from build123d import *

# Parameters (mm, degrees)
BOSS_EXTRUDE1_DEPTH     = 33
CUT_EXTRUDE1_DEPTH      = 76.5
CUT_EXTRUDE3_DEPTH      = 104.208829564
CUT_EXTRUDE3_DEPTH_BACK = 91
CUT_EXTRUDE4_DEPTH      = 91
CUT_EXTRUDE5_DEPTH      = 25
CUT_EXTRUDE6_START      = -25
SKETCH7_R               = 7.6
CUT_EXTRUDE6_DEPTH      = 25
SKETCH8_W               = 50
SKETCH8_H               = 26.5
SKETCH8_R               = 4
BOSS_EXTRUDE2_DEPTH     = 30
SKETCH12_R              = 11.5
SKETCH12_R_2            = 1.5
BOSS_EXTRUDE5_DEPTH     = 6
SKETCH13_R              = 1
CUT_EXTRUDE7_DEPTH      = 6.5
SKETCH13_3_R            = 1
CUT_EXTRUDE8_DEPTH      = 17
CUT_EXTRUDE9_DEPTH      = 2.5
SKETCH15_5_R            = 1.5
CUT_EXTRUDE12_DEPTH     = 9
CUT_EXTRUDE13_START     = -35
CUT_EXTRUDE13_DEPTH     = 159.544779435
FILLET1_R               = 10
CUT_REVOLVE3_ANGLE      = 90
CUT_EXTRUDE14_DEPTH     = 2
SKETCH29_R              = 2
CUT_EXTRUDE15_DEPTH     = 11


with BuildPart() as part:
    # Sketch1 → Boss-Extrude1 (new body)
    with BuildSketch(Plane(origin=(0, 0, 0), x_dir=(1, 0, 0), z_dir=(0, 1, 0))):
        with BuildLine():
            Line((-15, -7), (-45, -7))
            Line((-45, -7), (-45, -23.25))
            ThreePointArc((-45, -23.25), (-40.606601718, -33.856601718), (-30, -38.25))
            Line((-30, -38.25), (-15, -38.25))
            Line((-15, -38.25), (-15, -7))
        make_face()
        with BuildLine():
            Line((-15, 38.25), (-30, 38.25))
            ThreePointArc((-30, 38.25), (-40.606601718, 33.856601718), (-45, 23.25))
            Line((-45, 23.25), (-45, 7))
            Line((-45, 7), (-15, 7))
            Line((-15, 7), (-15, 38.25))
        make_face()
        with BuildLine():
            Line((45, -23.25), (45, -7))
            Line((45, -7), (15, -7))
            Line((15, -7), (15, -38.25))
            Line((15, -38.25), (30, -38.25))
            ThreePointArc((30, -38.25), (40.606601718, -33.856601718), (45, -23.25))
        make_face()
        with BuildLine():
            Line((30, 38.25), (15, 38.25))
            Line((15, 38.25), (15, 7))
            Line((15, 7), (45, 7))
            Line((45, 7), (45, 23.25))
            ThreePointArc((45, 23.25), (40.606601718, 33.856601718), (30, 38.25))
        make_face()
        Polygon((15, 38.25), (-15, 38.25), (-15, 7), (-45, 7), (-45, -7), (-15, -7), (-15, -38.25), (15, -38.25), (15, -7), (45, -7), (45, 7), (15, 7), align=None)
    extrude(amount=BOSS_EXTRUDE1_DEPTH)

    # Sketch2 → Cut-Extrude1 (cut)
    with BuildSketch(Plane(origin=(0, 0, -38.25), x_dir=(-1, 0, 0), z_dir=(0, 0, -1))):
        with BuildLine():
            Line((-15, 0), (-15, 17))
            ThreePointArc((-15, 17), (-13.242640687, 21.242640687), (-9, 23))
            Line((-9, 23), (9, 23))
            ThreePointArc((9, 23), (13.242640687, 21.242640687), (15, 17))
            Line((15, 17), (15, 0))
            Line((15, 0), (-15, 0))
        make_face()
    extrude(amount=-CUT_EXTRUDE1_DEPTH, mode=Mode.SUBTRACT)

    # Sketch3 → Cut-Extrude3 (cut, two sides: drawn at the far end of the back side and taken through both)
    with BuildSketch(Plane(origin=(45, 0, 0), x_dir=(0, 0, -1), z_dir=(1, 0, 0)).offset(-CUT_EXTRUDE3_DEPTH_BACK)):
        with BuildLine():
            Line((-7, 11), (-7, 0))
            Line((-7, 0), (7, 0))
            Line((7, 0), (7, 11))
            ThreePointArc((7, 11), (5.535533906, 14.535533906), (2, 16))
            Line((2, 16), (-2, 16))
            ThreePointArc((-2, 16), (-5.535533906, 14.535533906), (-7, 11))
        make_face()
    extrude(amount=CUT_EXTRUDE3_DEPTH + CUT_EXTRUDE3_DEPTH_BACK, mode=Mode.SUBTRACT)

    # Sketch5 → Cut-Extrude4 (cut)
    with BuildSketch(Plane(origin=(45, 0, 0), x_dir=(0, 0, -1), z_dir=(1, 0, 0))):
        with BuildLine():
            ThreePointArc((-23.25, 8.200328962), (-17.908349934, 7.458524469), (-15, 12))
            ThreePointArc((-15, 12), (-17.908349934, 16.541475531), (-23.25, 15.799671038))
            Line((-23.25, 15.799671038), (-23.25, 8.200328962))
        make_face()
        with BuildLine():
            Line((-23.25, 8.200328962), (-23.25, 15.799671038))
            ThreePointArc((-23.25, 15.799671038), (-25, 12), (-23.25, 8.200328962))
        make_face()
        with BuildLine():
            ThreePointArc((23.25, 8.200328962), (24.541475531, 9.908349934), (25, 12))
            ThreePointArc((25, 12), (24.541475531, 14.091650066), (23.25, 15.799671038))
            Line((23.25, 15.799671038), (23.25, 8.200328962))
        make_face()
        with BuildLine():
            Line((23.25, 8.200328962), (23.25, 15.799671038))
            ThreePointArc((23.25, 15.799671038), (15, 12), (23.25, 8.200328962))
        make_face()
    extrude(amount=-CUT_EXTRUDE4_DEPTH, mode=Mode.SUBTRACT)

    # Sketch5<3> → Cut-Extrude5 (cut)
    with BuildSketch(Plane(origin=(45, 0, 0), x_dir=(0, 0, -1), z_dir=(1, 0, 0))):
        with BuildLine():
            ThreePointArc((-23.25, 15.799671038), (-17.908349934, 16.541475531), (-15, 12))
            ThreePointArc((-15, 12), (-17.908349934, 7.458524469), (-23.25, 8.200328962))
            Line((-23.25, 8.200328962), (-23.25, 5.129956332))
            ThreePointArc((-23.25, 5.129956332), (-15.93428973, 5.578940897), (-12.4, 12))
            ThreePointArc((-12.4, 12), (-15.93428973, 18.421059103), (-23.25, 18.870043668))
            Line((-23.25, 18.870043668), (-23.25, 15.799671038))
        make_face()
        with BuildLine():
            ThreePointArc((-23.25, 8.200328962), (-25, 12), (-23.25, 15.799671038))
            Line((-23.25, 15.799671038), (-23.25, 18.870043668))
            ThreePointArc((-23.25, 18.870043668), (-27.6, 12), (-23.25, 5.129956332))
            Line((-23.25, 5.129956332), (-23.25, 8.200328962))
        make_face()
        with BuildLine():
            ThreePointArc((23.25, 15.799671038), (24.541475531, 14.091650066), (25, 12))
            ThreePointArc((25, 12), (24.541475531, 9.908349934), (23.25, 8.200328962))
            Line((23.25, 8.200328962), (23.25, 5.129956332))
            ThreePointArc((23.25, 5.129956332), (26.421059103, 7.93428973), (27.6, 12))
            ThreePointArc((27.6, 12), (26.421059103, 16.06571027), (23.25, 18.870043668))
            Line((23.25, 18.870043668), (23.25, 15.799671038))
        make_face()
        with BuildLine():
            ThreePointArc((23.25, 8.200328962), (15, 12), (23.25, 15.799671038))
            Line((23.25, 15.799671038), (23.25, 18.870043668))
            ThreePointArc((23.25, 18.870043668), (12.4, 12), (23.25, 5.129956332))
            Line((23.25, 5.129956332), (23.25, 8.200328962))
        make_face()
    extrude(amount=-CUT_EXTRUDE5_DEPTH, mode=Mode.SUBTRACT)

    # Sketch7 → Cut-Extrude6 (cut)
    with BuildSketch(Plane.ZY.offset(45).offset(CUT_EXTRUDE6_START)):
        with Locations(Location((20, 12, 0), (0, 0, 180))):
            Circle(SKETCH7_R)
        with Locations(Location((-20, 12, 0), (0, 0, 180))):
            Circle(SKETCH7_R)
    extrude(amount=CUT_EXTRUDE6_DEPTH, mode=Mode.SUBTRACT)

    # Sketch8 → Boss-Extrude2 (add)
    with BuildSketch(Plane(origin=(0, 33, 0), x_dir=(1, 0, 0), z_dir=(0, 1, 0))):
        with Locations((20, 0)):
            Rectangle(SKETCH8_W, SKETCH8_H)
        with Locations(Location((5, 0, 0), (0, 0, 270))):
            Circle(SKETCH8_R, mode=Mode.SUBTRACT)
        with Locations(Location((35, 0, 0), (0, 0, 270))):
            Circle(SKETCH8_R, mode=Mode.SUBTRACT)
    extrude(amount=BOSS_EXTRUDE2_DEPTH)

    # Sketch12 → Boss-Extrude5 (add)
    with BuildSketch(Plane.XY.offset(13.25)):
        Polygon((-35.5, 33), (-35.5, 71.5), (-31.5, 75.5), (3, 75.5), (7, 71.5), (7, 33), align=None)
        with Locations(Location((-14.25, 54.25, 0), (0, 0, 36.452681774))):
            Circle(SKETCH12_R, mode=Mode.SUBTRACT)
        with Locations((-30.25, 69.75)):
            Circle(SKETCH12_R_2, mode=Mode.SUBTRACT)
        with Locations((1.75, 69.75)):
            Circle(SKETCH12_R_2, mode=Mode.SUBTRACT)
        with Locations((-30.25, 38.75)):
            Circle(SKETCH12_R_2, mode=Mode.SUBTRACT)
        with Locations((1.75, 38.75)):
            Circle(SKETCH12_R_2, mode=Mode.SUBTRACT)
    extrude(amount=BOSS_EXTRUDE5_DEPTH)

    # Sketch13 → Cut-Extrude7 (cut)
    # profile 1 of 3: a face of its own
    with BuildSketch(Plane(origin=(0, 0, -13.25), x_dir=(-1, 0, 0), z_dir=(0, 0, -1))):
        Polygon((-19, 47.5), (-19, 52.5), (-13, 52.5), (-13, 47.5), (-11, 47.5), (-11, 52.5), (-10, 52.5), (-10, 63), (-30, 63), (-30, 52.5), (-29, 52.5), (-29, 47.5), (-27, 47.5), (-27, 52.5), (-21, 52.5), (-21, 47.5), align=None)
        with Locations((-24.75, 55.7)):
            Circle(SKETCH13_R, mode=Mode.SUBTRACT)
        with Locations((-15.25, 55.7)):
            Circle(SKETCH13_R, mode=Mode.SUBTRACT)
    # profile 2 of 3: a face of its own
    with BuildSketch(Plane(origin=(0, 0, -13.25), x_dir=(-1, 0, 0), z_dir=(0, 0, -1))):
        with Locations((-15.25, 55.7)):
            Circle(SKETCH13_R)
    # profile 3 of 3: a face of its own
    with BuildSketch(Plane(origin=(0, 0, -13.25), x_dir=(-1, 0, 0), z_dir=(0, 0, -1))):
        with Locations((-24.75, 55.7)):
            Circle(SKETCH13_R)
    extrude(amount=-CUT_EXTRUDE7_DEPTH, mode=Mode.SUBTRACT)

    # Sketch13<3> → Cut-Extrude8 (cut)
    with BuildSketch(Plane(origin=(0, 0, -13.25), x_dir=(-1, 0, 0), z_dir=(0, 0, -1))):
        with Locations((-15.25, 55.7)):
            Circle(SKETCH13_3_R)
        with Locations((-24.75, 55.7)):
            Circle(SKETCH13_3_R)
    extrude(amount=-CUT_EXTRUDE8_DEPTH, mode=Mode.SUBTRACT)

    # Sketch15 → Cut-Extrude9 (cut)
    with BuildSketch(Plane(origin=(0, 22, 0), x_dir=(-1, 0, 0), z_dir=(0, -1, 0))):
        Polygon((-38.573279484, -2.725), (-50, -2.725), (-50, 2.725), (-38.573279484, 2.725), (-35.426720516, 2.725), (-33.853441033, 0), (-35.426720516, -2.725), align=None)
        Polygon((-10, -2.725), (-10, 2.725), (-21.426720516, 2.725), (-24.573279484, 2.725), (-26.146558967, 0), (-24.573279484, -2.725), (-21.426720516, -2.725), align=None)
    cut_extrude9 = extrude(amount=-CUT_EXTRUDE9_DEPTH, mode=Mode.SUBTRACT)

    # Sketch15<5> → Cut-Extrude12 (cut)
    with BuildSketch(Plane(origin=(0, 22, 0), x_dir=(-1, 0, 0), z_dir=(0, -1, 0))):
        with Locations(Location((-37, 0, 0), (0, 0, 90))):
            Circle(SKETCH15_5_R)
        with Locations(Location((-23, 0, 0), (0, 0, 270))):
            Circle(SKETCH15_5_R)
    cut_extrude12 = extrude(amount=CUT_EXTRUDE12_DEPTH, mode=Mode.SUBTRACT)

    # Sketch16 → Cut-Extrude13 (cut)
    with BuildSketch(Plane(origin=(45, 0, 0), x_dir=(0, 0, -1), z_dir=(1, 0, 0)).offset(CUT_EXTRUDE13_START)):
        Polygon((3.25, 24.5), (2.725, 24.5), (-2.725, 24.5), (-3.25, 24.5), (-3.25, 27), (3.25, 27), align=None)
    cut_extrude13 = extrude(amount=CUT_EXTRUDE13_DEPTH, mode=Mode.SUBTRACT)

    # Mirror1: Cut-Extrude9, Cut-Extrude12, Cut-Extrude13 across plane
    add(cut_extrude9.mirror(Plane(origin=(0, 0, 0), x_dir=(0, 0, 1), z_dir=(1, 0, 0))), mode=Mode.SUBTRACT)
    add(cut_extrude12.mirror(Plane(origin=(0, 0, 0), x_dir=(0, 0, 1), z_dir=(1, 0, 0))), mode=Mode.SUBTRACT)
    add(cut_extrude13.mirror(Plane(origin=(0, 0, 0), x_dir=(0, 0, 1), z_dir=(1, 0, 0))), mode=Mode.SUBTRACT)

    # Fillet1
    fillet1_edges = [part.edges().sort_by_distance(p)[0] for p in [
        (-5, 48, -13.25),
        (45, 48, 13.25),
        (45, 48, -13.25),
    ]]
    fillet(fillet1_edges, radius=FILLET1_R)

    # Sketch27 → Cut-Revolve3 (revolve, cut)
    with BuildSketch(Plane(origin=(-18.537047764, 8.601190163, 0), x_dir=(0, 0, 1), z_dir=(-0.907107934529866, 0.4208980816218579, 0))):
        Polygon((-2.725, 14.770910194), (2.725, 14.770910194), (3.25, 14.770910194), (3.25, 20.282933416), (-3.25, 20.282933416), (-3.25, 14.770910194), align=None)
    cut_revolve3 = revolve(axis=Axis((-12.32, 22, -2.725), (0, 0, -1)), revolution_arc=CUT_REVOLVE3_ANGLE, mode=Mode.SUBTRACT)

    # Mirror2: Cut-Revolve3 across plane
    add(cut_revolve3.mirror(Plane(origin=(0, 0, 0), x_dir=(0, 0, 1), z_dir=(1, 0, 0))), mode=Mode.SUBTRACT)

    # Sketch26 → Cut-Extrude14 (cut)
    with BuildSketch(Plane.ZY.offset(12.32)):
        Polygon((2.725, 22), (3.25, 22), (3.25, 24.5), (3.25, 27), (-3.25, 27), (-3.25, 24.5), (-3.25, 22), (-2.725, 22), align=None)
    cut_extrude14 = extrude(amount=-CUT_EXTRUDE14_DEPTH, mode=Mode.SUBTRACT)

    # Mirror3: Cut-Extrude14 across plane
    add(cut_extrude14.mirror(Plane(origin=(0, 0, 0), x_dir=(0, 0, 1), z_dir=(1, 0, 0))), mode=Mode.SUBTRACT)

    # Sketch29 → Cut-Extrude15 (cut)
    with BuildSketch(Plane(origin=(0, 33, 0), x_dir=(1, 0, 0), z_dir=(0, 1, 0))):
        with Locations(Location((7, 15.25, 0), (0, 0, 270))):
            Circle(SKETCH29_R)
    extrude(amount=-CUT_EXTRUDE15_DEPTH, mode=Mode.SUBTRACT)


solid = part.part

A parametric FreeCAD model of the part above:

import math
import FreeCAD as App
import Part
import Sketcher
Q = App.Units.Quantity


def edges_at(feature, points):
    """Names of the edges that pass closest to the given points."""
    edges = feature.Shape.Edges
    near = lambda p: min(range(len(edges)), key=lambda i: edges[i].distToShape(Part.Vertex(*p))[0])
    return sorted({f"Edge{near(p) + 1}" for p in points})

doc = App.newDocument("Part")
body = doc.addObject("PartDesign::Body", "Body")

# Sketch on XZ plane
sketch1 = doc.addObject("Sketcher::SketchObject", "Sketch")
body.addObject(sketch1)
sketch1.AttachmentSupport = (doc.XZ_Plane, [""])
sketch1.MapMode = "FlatFace"
sketch1.addGeometry(Part.ArcOfCircle(Part.Circle(App.Vector(-30, 23, 0), App.Vector(0, 0, 1), 15), math.radians(90), math.radians(180)), False)
sketch1.addGeometry(Part.LineSegment(App.Vector(-30, 38, 0), App.Vector(30, 38, 0)), False)
sketch1.addGeometry(Part.ArcOfCircle(Part.Circle(App.Vector(30, 23, 0), App.Vector(0, 0, 1), 15), math.radians(0), math.radians(90)), False)
sketch1.addGeometry(Part.LineSegment(App.Vector(45, 23, 0), App.Vector(45, -23, 0)), False)
sketch1.addGeometry(Part.ArcOfCircle(Part.Circle(App.Vector(30, -23, 0), App.Vector(0, 0, 1), 15), math.radians(-90), math.radians(0)), False)
sketch1.addGeometry(Part.LineSegment(App.Vector(30, -38, 0), App.Vector(-30, -38, 0)), False)
sketch1.addGeometry(Part.ArcOfCircle(Part.Circle(App.Vector(-30, -23, 0), App.Vector(0, 0, 1), 15), math.radians(180), math.radians(270)), False)
sketch1.addGeometry(Part.LineSegment(App.Vector(-45, -23, 0), App.Vector(-45, 23, 0)), False)
sketch1.addConstraint(Sketcher.Constraint("Tangent", 0, 1, 1, 1))
sketch1.addConstraint(Sketcher.Constraint("Tangent", 1, 2, 2, 2))
sketch1.addConstraint(Sketcher.Constraint("Tangent", 2, 1, 3, 1))
sketch1.addConstraint(Sketcher.Constraint("Tangent", 3, 2, 4, 2))
sketch1.addConstraint(Sketcher.Constraint("Tangent", 4, 1, 5, 1))
sketch1.addConstraint(Sketcher.Constraint("Tangent", 5, 2, 6, 2))
sketch1.addConstraint(Sketcher.Constraint("Tangent", 6, 1, 7, 1))
sketch1.addConstraint(Sketcher.Constraint("Tangent", 7, 2, 0, 2))
sketch1.addConstraint(Sketcher.Constraint("Horizontal", 1))
sketch1.addConstraint(Sketcher.Constraint("Vertical", 3))
sketch1.addConstraint(Sketcher.Constraint("Horizontal", 5))
sketch1.addConstraint(Sketcher.Constraint("Vertical", 7))
sketch1.addConstraint(Sketcher.Constraint("Equal", 0, 2))
sketch1.addConstraint(Sketcher.Constraint("Equal", 2, 4))
sketch1.addConstraint(Sketcher.Constraint("Equal", 4, 6))
sketch1.addConstraint(Sketcher.Constraint("Symmetric", 0, 3, 4, 3, -1, 1))
sketch1.addConstraint(Sketcher.Constraint("Radius", 0, Q("15 mm")))
sketch1.addConstraint(Sketcher.Constraint("DistanceX", 1, 1, 1, 2, Q("60 mm")))
sketch1.addConstraint(Sketcher.Constraint("DistanceY", 3, 2, 3, 1, Q("46.5 mm")))
pad1 = doc.addObject("PartDesign::Pad", "Pad")
body.addObject(pad1)
pad1.Profile = sketch1
pad1.Length = 33
pad1.Reversed = True

# Sketch on XY plane
sketch2 = doc.addObject("Sketcher::SketchObject", "Sketch001")
body.addObject(sketch2)
sketch2.AttachmentSupport = (doc.XY_Plane, [""])
sketch2.MapMode = "FlatFace"
sketch2.AttachmentOffset = App.Placement(App.Vector(0, 0, -38.25), App.Rotation())
sketch2.addGeometry(Part.LineSegment(App.Vector(15, 17, 0), App.Vector(15, 0, 0)), False)
sketch2.addGeometry(Part.LineSegment(App.Vector(15, 0, 0), App.Vector(-15, 0, 0)), False)
sketch2.addGeometry(Part.LineSegment(App.Vector(-15, 0, 0), App.Vector(-15, 17, 0)), False)
sketch2.addGeometry(Part.ArcOfCircle(Part.Circle(App.Vector(-9, 17, 0), App.Vector(0, 0, 1), 6), math.radians(90), math.radians(180)), False)
sketch2.addGeometry(Part.LineSegment(App.Vector(-9, 23, 0), App.Vector(9, 23, 0)), False)
sketch2.addGeometry(Part.ArcOfCircle(Part.Circle(App.Vector(9, 17, 0), App.Vector(0, 0, 1), 6), math.radians(0), math.radians(90)), False)
sketch2.addConstraint(Sketcher.Constraint("Coincident", 0, 2, 1, 1))
sketch2.addConstraint(Sketcher.Constraint("Coincident", 1, 2, 2, 1))
sketch2.addConstraint(Sketcher.Constraint("Tangent", 2, 2, 3, 2))
sketch2.addConstraint(Sketcher.Constraint("Tangent", 3, 1, 4, 1))
sketch2.addConstraint(Sketcher.Constraint("Tangent", 4, 2, 5, 2))
sketch2.addConstraint(Sketcher.Constraint("Tangent", 5, 1, 0, 1))
sketch2.addConstraint(Sketcher.Constraint("Vertical", 0))
sketch2.addConstraint(Sketcher.Constraint("Horizontal", 1))
sketch2.addConstraint(Sketcher.Constraint("Vertical", 2))
sketch2.addConstraint(Sketcher.Constraint("Horizontal", 4))
sketch2.addConstraint(Sketcher.Constraint("Equal", 3, 5))
sketch2.addConstraint(Sketcher.Constraint("Symmetric", 0, 2, 1, 2, -1, 1))
sketch2.addConstraint(Sketcher.Constraint("Radius", 3, Q("6 mm")))
sketch2.addConstraint(Sketcher.Constraint("DistanceX", 1, 2, 1, 1, Q("30 mm")))
sketch2.addConstraint(Sketcher.Constraint("DistanceY", 0, 2, 0, 1, Q("17 mm")))
pocket1 = doc.addObject("PartDesign::Pocket", "Pocket")
body.addObject(pocket1)
pocket1.Profile = sketch2
pocket1.Length = 76.5
pocket1.Reversed = True

# Sketch on YZ plane
sketch3 = doc.addObject("Sketcher::SketchObject", "Sketch002")
body.addObject(sketch3)
sketch3.AttachmentSupport = (doc.YZ_Plane, [""])
sketch3.MapMode = "FlatFace"
sketch3.AttachmentOffset = App.Placement(App.Vector(0, 0, 45), App.Rotation())
sketch3.addGeometry(Part.LineSegment(App.Vector(11, 7, 0), App.Vector(0, 7, 0)), False)
sketch3.addGeometry(Part.LineSegment(App.Vector(0, 7, 0), App.Vector(0, -7, 0)), False)
sketch3.addGeometry(Part.LineSegment(App.Vector(0, -7, 0), App.Vector(11, -7, 0)), False)
sketch3.addGeometry(Part.ArcOfCircle(Part.Circle(App.Vector(11, -2, 0), App.Vector(0, 0, 1), 5), math.radians(-90), math.radians(0)), False)
sketch3.addGeometry(Part.LineSegment(App.Vector(16, -2, 0), App.Vector(16, 2, 0)), False)
sketch3.addGeometry(Part.ArcOfCircle(Part.Circle(App.Vector(11, 2, 0), App.Vector(0, 0, 1), 5), math.radians(0), math.radians(90)), False)
sketch3.addConstraint(Sketcher.Constraint("Coincident", 0, 2, 1, 1))
sketch3.addConstraint(Sketcher.Constraint("Coincident", 1, 2, 2, 1))
sketch3.addConstraint(Sketcher.Constraint("Tangent", 2, 2, 3, 1))
sketch3.addConstraint(Sketcher.Constraint("Tangent", 3, 2, 4, 1))
sketch3.addConstraint(Sketcher.Constraint("Tangent", 4, 2, 5, 1))
sketch3.addConstraint(Sketcher.Constraint("Tangent", 5, 2, 0, 1))
sketch3.addConstraint(Sketcher.Constraint("Horizontal", 0))
sketch3.addConstraint(Sketcher.Constraint("Vertical", 1))
sketch3.addConstraint(Sketcher.Constraint("Horizontal", 2))
sketch3.addConstraint(Sketcher.Constraint("Vertical", 4))
sketch3.addConstraint(Sketcher.Constraint("Equal", 3, 5))
sketch3.addConstraint(Sketcher.Constraint("Symmetric", 0, 2, 1, 2, -1, 1))
sketch3.addConstraint(Sketcher.Constraint("Radius", 3, Q("5 mm")))
sketch3.addConstraint(Sketcher.Constraint("DistanceX", 0, 2, 0, 1, Q("11 mm")))
sketch3.addConstraint(Sketcher.Constraint("DistanceY", 1, 2, 1, 1, Q("14 mm")))
pocket2 = doc.addObject("PartDesign::Pocket", "Pocket001")
body.addObject(pocket2)
pocket2.Profile = sketch3
pocket2.Type = "ThroughAll"
pocket2.Midplane = True

# Sketch on YZ plane
sketch4 = doc.addObject("Sketcher::SketchObject", "Sketch003")
body.addObject(sketch4)
sketch4.AttachmentSupport = (doc.YZ_Plane, [""])
sketch4.MapMode = "FlatFace"
sketch4.AttachmentOffset = App.Placement(App.Vector(0, 0, 45), App.Rotation())
sketch4.addGeometry(Part.ArcOfCircle(Part.Circle(App.Vector(12, 20, 0), App.Vector(0, 0, 1), 5), math.radians(139), math.radians(270)), False)
sketch4.addGeometry(Part.ArcOfCircle(Part.Circle(App.Vector(12, 20, 0), App.Vector(0, 0, 1), 5), math.radians(-90), math.radians(41)), False)
sketch4.addGeometry(Part.ArcOfCircle(Part.Circle(App.Vector(12, 20, 0), App.Vector(0, 0, 1), 5), math.radians(41), math.radians(139)), False)
sketch4.addGeometry(Part.ArcOfCircle(Part.Circle(App.Vector(12, -20, 0), App.Vector(0, 0, 1), 5), math.radians(-139), math.radians(-90)), False)
sketch4.addGeometry(Part.ArcOfCircle(Part.Circle(App.Vector(12, -20, 0), App.Vector(0, 0, 1), 5), math.radians(-90), math.radians(-41)), False)
sketch4.addGeometry(Part.ArcOfCircle(Part.Circle(App.Vector(12, -20, 0), App.Vector(0, 0, 1), 5), math.radians(-41), math.radians(221)), False)
sketch4.addConstraint(Sketcher.Constraint("Tangent", 0, 2, 1, 1))
sketch4.addConstraint(Sketcher.Constraint("Tangent", 1, 2, 2, 1))
sketch4.addConstraint(Sketcher.Constraint("Tangent", 2, 2, 0, 1))
sketch4.addConstraint(Sketcher.Constraint("Tangent", 3, 2, 4, 1))
sketch4.addConstraint(Sketcher.Constraint("Tangent", 4, 2, 5, 1))
sketch4.addConstraint(Sketcher.Constraint("Tangent", 5, 2, 3, 1))
sketch4.addConstraint(Sketcher.Constraint("Equal", 2, 3))
sketch4.addConstraint(Sketcher.Constraint("Symmetric", 0, 3, 3, 3, -1))
sketch4.addConstraint(Sketcher.Constraint("Horizontal", 1, 2, 2, 2))
sketch4.addConstraint(Sketcher.Constraint("Horizontal", 4, 2, 5, 2))
sketch4.addConstraint(Sketcher.Constraint("Vertical", 5, 3, 0, 2))
sketch4.addConstraint(Sketcher.Constraint("Vertical", 0, 2, 3, 2))
sketch4.addConstraint(Sketcher.Constraint("Vertical", 1, 2, 4, 2))
sketch4.addConstraint(Sketcher.Constraint("Radius", 0, Q("5 mm")))
sketch4.addConstraint(Sketcher.Constraint("DistanceX", -1, 1, 0, 3, Q("12 mm")))
sketch4.addConstraint(Sketcher.Constraint("DistanceY", -1, 1, 0, 3, Q("20 mm")))
sketch4.addConstraint(Sketcher.Constraint("DistanceY", -1, 1, 1, 2, Q("23.25 mm")))
pocket3 = doc.addObject("PartDesign::Pocket", "Pocket002")
body.addObject(pocket3)
pocket3.Profile = sketch4
pocket3.Length = 91

# Sketch on YZ plane
sketch5 = doc.addObject("Sketcher::SketchObject", "Sketch004")
body.addObject(sketch5)
sketch5.AttachmentSupport = (doc.YZ_Plane, [""])
sketch5.MapMode = "FlatFace"
sketch5.AttachmentOffset = App.Placement(App.Vector(0, 0, 45), App.Rotation())
sketch5.addGeometry(Part.ArcOfCircle(Part.Circle(App.Vector(12, 20, 0), App.Vector(0, 0, 1), 7.6), math.radians(155), math.radians(270)), False)
sketch5.addGeometry(Part.ArcOfCircle(Part.Circle(App.Vector(12, 20, 0), App.Vector(0, 0, 1), 7.6), math.radians(-90), math.radians(25)), False)
sketch5.addGeometry(Part.ArcOfCircle(Part.Circle(App.Vector(12, 20, 0), App.Vector(0, 0, 1), 7.6), math.radians(25), math.radians(155)), False)
sketch5.addGeometry(Part.ArcOfCircle(Part.Circle(App.Vector(12, 20, 0), App.Vector(0, 0, 1), 5), math.radians(139), math.radians(270)), False)
sketch5.addGeometry(Part.ArcOfCircle(Part.Circle(App.Vector(12, 20, 0), App.Vector(0, 0, 1), 5), math.radians(41), math.radians(139)), False)
sketch5.addGeometry(Part.ArcOfCircle(Part.Circle(App.Vector(12, 20, 0), App.Vector(0, 0, 1), 5), math.radians(-90), math.radians(41)), False)
sketch5.addGeometry(Part.ArcOfCircle(Part.Circle(App.Vector(12, -20, 0), App.Vector(0, 0, 1), 7.6), math.radians(-155), math.radians(-90)), False)
sketch5.addGeometry(Part.ArcOfCircle(Part.Circle(App.Vector(12, -20, 0), App.Vector(0, 0, 1), 7.6), math.radians(-90), math.radians(-25)), False)
sketch5.addGeometry(Part.ArcOfCircle(Part.Circle(App.Vector(12, -20, 0), App.Vector(0, 0, 1), 7.6), math.radians(-25), math.radians(205)), False)
sketch5.addGeometry(Part.ArcOfCircle(Part.Circle(App.Vector(12, -20, 0), App.Vector(0, 0, 1), 5), math.radians(-139), math.radians(-90)), False)
sketch5.addGeometry(Part.ArcOfCircle(Part.Circle(App.Vector(12, -20, 0), App.Vector(0, 0, 1), 5), math.radians(-41), math.radians(221)), False)
sketch5.addGeometry(Part.ArcOfCircle(Part.Circle(App.Vector(12, -20, 0), App.Vector(0, 0, 1), 5), math.radians(-90), math.radians(-41)), False)
sketch5.addConstraint(Sketcher.Constraint("Tangent", 0, 2, 1, 1))
sketch5.addConstraint(Sketcher.Constraint("Tangent", 1, 2, 2, 1))
sketch5.addConstraint(Sketcher.Constraint("Tangent", 2, 2, 0, 1))
sketch5.addConstraint(Sketcher.Constraint("Tangent", 3, 1, 4, 2))
sketch5.addConstraint(Sketcher.Constraint("Tangent", 4, 1, 5, 2))
sketch5.addConstraint(Sketcher.Constraint("Tangent", 5, 1, 3, 2))
sketch5.addConstraint(Sketcher.Constraint("Tangent", 6, 2, 7, 1))
sketch5.addConstraint(Sketcher.Constraint("Tangent", 7, 2, 8, 1))
sketch5.addConstraint(Sketcher.Constraint("Tangent", 8, 2, 6, 1))
sketch5.addConstraint(Sketcher.Constraint("Tangent", 9, 1, 10, 2))
sketch5.addConstraint(Sketcher.Constraint("Tangent", 10, 1, 11, 2))
sketch5.addConstraint(Sketcher.Constraint("Tangent", 11, 1, 9, 2))
sketch5.addConstraint(Sketcher.Constraint("Coincident", 3, 3, 0, 3))
sketch5.addConstraint(Sketcher.Constraint("Coincident", 9, 3, 6, 3))
sketch5.addConstraint(Sketcher.Constraint("Equal", 2, 6))
sketch5.addConstraint(Sketcher.Constraint("Equal", 5, 9))
sketch5.addConstraint(Sketcher.Constraint("Symmetric", 0, 3, 6, 3, -1))
sketch5.addConstraint(Sketcher.Constraint("Horizontal", 1, 2, 2, 2))
sketch5.addConstraint(Sketcher.Constraint("Horizontal", 2, 2, 3, 1))
sketch5.addConstraint(Sketcher.Constraint("Horizontal", 3, 1, 4, 1))
sketch5.addConstraint(Sketcher.Constraint("Horizontal", 7, 2, 8, 2))
sketch5.addConstraint(Sketcher.Constraint("Horizontal", 8, 2, 9, 1))
sketch5.addConstraint(Sketcher.Constraint("Horizontal", 9, 1, 10, 1))
sketch5.addConstraint(Sketcher.Constraint("Vertical", 11, 3, 0, 2))
sketch5.addConstraint(Sketcher.Constraint("Vertical", 0, 2, 5, 1))
sketch5.addConstraint(Sketcher.Constraint("Vertical", 5, 1, 6, 2))
sketch5.addConstraint(Sketcher.Constraint("Vertical", 1, 2, 7, 2))
sketch5.addConstraint(Sketcher.Constraint("Vertical", 6, 2, 11, 1))
sketch5.addConstraint(Sketcher.Constraint("Radius", 3, Q("5 mm")))
sketch5.addConstraint(Sketcher.Constraint("Radius", 0, Q("7.6 mm")))
sketch5.addConstraint(Sketcher.Constraint("DistanceX", -1, 1, 0, 3, Q("12 mm")))
sketch5.addConstraint(Sketcher.Constraint("DistanceY", -1, 1, 0, 3, Q("20 mm")))
sketch5.addConstraint(Sketcher.Constraint("DistanceY", -1, 1, 1, 2, Q("23.25 mm")))
pocket4 = doc.addObject("PartDesign::Pocket", "Pocket003")
body.addObject(pocket4)
pocket4.Profile = sketch5
pocket4.Length = 25

# Sketch on YZ plane
sketch6 = doc.addObject("Sketcher::SketchObject", "Sketch005")
body.addObject(sketch6)
sketch6.AttachmentSupport = (doc.YZ_Plane, [""])
sketch6.MapMode = "FlatFace"
sketch6.AttachmentOffset = App.Placement(App.Vector(0, 0, -20), App.Rotation())
sketch6.addGeometry(Part.Circle(App.Vector(12, 20, 0), App.Vector(0, 0, 1), 8), False)
sketch6.addGeometry(Part.Circle(App.Vector(12, -20, 0), App.Vector(0, 0, 1), 8), False)
sketch6.addConstraint(Sketcher.Constraint("Equal", 0, 1))
sketch6.addConstraint(Sketcher.Constraint("Symmetric", 0, 3, 1, 3, -1))
sketch6.addConstraint(Sketcher.Constraint("Diameter", 0, Q("15.2 mm")))
sketch6.addConstraint(Sketcher.Constraint("DistanceX", -1, 1, 0, 3, Q("12 mm")))
sketch6.addConstraint(Sketcher.Constraint("DistanceY", -1, 1, 0, 3, Q("20 mm")))
pocket5 = doc.addObject("PartDesign::Pocket", "Pocket004")
body.addObject(pocket5)
pocket5.Profile = sketch6
pocket5.Length = 25

# Sketch on XZ plane
sketch7 = doc.addObject("Sketcher::SketchObject", "Sketch006")
body.addObject(sketch7)
sketch7.AttachmentSupport = (doc.XZ_Plane, [""])
sketch7.MapMode = "FlatFace"
sketch7.AttachmentOffset = App.Placement(App.Vector(0, 0, -33), App.Rotation())
sketch7.addGeometry(Part.LineSegment(App.Vector(-5, -13.2, 0), App.Vector(-5, 13.2, 0)), False)
sketch7.addGeometry(Part.LineSegment(App.Vector(-5, 13.2, 0), App.Vector(45, 13.2, 0)), False)
sketch7.addGeometry(Part.LineSegment(App.Vector(45, 13.2, 0), App.Vector(45, -13.2, 0)), False)
sketch7.addGeometry(Part.LineSegment(App.Vector(45, -13.2, 0), App.Vector(-5, -13.2, 0)), False)
sketch7.addGeometry(Part.Circle(App.Vector(5, 0, 0), App.Vector(0, 0, 1), 4), False)
sketch7.addGeometry(Part.Circle(App.Vector(35, 0, 0), App.Vector(0, 0, 1), 4), False)
sketch7.addConstraint(Sketcher.Constraint("Coincident", 0, 2, 1, 1))
sketch7.addConstraint(Sketcher.Constraint("Coincident", 1, 2, 2, 1))
sketch7.addConstraint(Sketcher.Constraint("Coincident", 2, 2, 3, 1))
sketch7.addConstraint(Sketcher.Constraint("Coincident", 3, 2, 0, 1))
sketch7.addConstraint(Sketcher.Constraint("Vertical", 0))
sketch7.addConstraint(Sketcher.Constraint("Horizontal", 1))
sketch7.addConstraint(Sketcher.Constraint("Vertical", 2))
sketch7.addConstraint(Sketcher.Constraint("Horizontal", 3))
sketch7.addConstraint(Sketcher.Constraint("Equal", 4, 5))
sketch7.addConstraint(Sketcher.Constraint("PointOnObject", 4, 3, -1))
sketch7.addConstraint(Sketcher.Constraint("PointOnObject", 5, 3, -1))
sketch7.addConstraint(Sketcher.Constraint("Diameter", 4, Q("8 mm")))
sketch7.addConstraint(Sketcher.Constraint("DistanceX", 1, 1, 1, 2, Q("50 mm")))
sketch7.addConstraint(Sketcher.Constraint("DistanceY", 0, 1, 0, 2, Q("26.5 mm")))
sketch7.addConstraint(Sketcher.Constraint("DistanceX", -1, 1, 4, 3, Q("5 mm")))
sketch7.addConstraint(Sketcher.Constraint("DistanceX", -1, 1, 5, 3, Q("35 mm")))
sketch7.addConstraint(Sketcher.Constraint("DistanceX", 0, 2, -1, 1, Q("5 mm")))
sketch7.addConstraint(Sketcher.Constraint("DistanceY", -1, 1, 0, 2, Q("13.25 mm")))
pad2 = doc.addObject("PartDesign::Pad", "Pad001")
body.addObject(pad2)
pad2.Profile = sketch7
pad2.Length = 30
pad2.Reversed = True

# Sketch on XY plane
sketch8 = doc.addObject("Sketcher::SketchObject", "Sketch007")
body.addObject(sketch8)
sketch8.AttachmentSupport = (doc.XY_Plane, [""])
sketch8.MapMode = "FlatFace"
sketch8.AttachmentOffset = App.Placement(App.Vector(0, 0, 13.25), App.Rotation())
sketch8.addGeometry(Part.LineSegment(App.Vector(-35.5, 71.5, 0), App.Vector(-35.5, 33, 0)), False)
sketch8.addGeometry(Part.LineSegment(App.Vector(-35.5, 33, 0), App.Vector(7, 33, 0)), False)
sketch8.addGeometry(Part.LineSegment(App.Vector(7, 33, 0), App.Vector(7, 71.5, 0)), False)
sketch8.addGeometry(Part.LineSegment(App.Vector(7, 71.5, 0), App.Vector(3, 75.5, 0)), False)
sketch8.addGeometry(Part.LineSegment(App.Vector(3, 75.5, 0), App.Vector(-31.5, 75.5, 0)), False)
sketch8.addGeometry(Part.LineSegment(App.Vector(-31.5, 75.5, 0), App.Vector(-35.5, 71.5, 0)), False)
sketch8.addGeometry(Part.Circle(App.Vector(1.8, 38.8, 0), App.Vector(0, 0, 1), 1.5), False)
sketch8.addGeometry(Part.Circle(App.Vector(-30.2, 38.8, 0), App.Vector(0, 0, 1), 1.5), False)
sketch8.addGeometry(Part.Circle(App.Vector(1.8, 69.8, 0), App.Vector(0, 0, 1), 1.5), False)
sketch8.addGeometry(Part.Circle(App.Vector(-14.2, 54.2, 0), App.Vector(0, 0, 1), 11.5), False)
sketch8.addGeometry(Part.Circle(App.Vector(-30.2, 69.8, 0), App.Vector(0, 0, 1), 1.5), False)
sketch8.addConstraint(Sketcher.Constraint("Coincident", 0, 2, 1, 1))
sketch8.addConstraint(Sketcher.Constraint("Coincident", 1, 2, 2, 1))
sketch8.addConstraint(Sketcher.Constraint("Coincident", 2, 2, 3, 1))
sketch8.addConstraint(Sketcher.Constraint("Coincident", 3, 2, 4, 1))
sketch8.addConstraint(Sketcher.Constraint("Coincident", 4, 2, 5, 1))
sketch8.addConstraint(Sketcher.Constraint("Coincident", 5, 2, 0, 1))
sketch8.addConstraint(Sketcher.Constraint("Vertical", 0))
sketch8.addConstraint(Sketcher.Constraint("Horizontal", 1))
sketch8.addConstraint(Sketcher.Constraint("Vertical", 2))
sketch8.addConstraint(Sketcher.Constraint("Horizontal", 4))
sketch8.addConstraint(Sketcher.Constraint("Equal", 6, 7))
sketch8.addConstraint(Sketcher.Constraint("Equal", 7, 8))
sketch8.addConstraint(Sketcher.Constraint("Equal", 8, 10))
sketch8.addConstraint(Sketcher.Constraint("Perpendicular", 3, 5))
sketch8.addConstraint(Sketcher.Constraint("Horizontal", 6, 3, 7, 3))
sketch8.addConstraint(Sketcher.Constraint("Horizontal", 8, 3, 10, 3))
sketch8.addConstraint(Sketcher.Constraint("Horizontal", 2, 2, 5, 2))
sketch8.addConstraint(Sketcher.Constraint("Vertical", 6, 3, 8, 3))
sketch8.addConstraint(Sketcher.Constraint("Vertical", 7, 3, 10, 3))
sketch8.addConstraint(Sketcher.Constraint("Equal", 3, 5))
sketch8.addConstraint(Sketcher.Constraint("Diameter", 6, Q("3 mm")))
sketch8.addConstraint(Sketcher.Constraint("Diameter", 9, Q("23 mm")))
sketch8.addConstraint(Sketcher.Constraint("DistanceX", 1, 1, 1, 2, Q("42.5 mm")))
sketch8.addConstraint(Sketcher.Constraint("DistanceX", 4, 2, 4, 1, Q("34.5 mm")))
sketch8.addConstraint(Sketcher.Constraint("DistanceY", 0, 2, 0, 1, Q("38.5 mm")))
sketch8.addConstraint(Sketcher.Constraint("DistanceY", -1, 1, 0, 2, Q("33 mm")))
sketch8.addConstraint(Sketcher.Constraint("DistanceX", -1, 1, 1, 2, Q("7 mm")))
sketch8.addConstraint(Sketcher.Constraint("DistanceX", 7, 3, 6, 3, Q("32 mm")))
sketch8.addConstraint(Sketcher.Constraint("DistanceY", 6, 3, 8, 3, Q("31 mm")))
sketch8.addConstraint(Sketcher.Constraint("DistanceX", 9, 3, 6, 3, Q("16 mm")))
sketch8.addConstraint(Sketcher.Constraint("DistanceY", 6, 3, 9, 3, Q("15.5 mm")))
sketch8.addConstraint(Sketcher.Constraint("DistanceX", -1, 1, 6, 3, Q("1.75 mm")))
sketch8.addConstraint(Sketcher.Constraint("DistanceY", -1, 1, 6, 3, Q("38.75 mm")))
pad3 = doc.addObject("PartDesign::Pad", "Pad002")
body.addObject(pad3)
pad3.Profile = sketch8
pad3.Length = 6

# Sketch on XY plane
sketch9 = doc.addObject("Sketcher::SketchObject", "Sketch008")
body.addObject(sketch9)
sketch9.AttachmentSupport = (doc.XY_Plane, [""])
sketch9.MapMode = "FlatFace"
sketch9.AttachmentOffset = App.Placement(App.Vector(0, 0, -13.25), App.Rotation())
sketch9.addGeometry(Part.LineSegment(App.Vector(19, 47.5, 0), App.Vector(19, 52.5, 0)), False)
sketch9.addGeometry(Part.LineSegment(App.Vector(19, 52.5, 0), App.Vector(13, 52.5, 0)), False)
sketch9.addGeometry(Part.LineSegment(App.Vector(13, 52.5, 0), App.Vector(13, 47.5, 0)), False)
sketch9.addGeometry(Part.LineSegment(App.Vector(13, 47.5, 0), App.Vector(11, 47.5, 0)), False)
sketch9.addGeometry(Part.LineSegment(App.Vector(11, 47.5, 0), App.Vector(11, 52.5, 0)), False)
sketch9.addGeometry(Part.LineSegment(App.Vector(11, 52.5, 0), App.Vector(10, 52.5, 0)), False)
sketch9.addGeometry(Part.LineSegment(App.Vector(10, 52.5, 0), App.Vector(10, 63, 0)), False)
sketch9.addGeometry(Part.LineSegment(App.Vector(10, 63, 0), App.Vector(30, 63, 0)), False)
sketch9.addGeometry(Part.LineSegment(App.Vector(30, 63, 0), App.Vector(30, 52.5, 0)), False)
sketch9.addGeometry(Part.LineSegment(App.Vector(30, 52.5, 0), App.Vector(29, 52.5, 0)), False)
sketch9.addGeometry(Part.LineSegment(App.Vector(29, 52.5, 0), App.Vector(29, 47.5, 0)), False)
sketch9.addGeometry(Part.LineSegment(App.Vector(29, 47.5, 0), App.Vector(27, 47.5, 0)), False)
sketch9.addGeometry(Part.LineSegment(App.Vector(27, 47.5, 0), App.Vector(27, 52.5, 0)), False)
sketch9.addGeometry(Part.LineSegment(App.Vector(27, 52.5, 0), App.Vector(21, 52.5, 0)), False)
sketch9.addGeometry(Part.LineSegment(App.Vector(21, 52.5, 0), App.Vector(21, 47.5, 0)), False)
sketch9.addGeometry(Part.LineSegment(App.Vector(21, 47.5, 0), App.Vector(19, 47.5, 0)), False)
sketch9.addConstraint(Sketcher.Constraint("Coincident", 0, 2, 1, 1))
sketch9.addConstraint(Sketcher.Constraint("Coincident", 1, 2, 2, 1))
sketch9.addConstraint(Sketcher.Constraint("Coincident", 2, 2, 3, 1))
sketch9.addConstraint(Sketcher.Constraint("Coincident", 3, 2, 4, 1))
sketch9.addConstraint(Sketcher.Constraint("Coincident", 4, 2, 5, 1))
sketch9.addConstraint(Sketcher.Constraint("Coincident", 5, 2, 6, 1))
sketch9.addConstraint(Sketcher.Constraint("Coincident", 6, 2, 7, 1))
sketch9.addConstraint(Sketcher.Constraint("Coincident", 7, 2, 8, 1))
sketch9.addConstraint(Sketcher.Constraint("Coincident", 8, 2, 9, 1))
sketch9.addConstraint(Sketcher.Constraint("Coincident", 9, 2, 10, 1))
sketch9.addConstraint(Sketcher.Constraint("Coincident", 10, 2, 11, 1))
sketch9.addConstraint(Sketcher.Constraint("Coincident", 11, 2, 12, 1))
sketch9.addConstraint(Sketcher.Constraint("Coincident", 12, 2, 13, 1))
sketch9.addConstraint(Sketcher.Constraint("Coincident", 13, 2, 14, 1))
sketch9.addConstraint(Sketcher.Constraint("Coincident", 14, 2, 15, 1))
sketch9.addConstraint(Sketcher.Constraint("Coincident", 15, 2, 0, 1))
sketch9.addConstraint(Sketcher.Constraint("Vertical", 0))
sketch9.addConstraint(Sketcher.Constraint("Horizontal", 1))
sketch9.addConstraint(Sketcher.Constraint("Vertical", 2))
sketch9.addConstraint(Sketcher.Constraint("Horizontal", 3))
sketch9.addConstraint(Sketcher.Constraint("Vertical", 4))
sketch9.addConstraint(Sketcher.Constraint("Horizontal", 5))
sketch9.addConstraint(Sketcher.Constraint("Vertical", 6))
sketch9.addConstraint(Sketcher.Constraint("Horizontal", 7))
sketch9.addConstraint(Sketcher.Constraint("Vertical", 8))
sketch9.addConstraint(Sketcher.Constraint("Horizontal", 9))
sketch9.addConstraint(Sketcher.Constraint("Vertical", 10))
sketch9.addConstraint(Sketcher.Constraint("Horizontal", 11))
sketch9.addConstraint(Sketcher.Constraint("Vertical", 12))
sketch9.addConstraint(Sketcher.Constraint("Horizontal", 13))
sketch9.addConstraint(Sketcher.Constraint("Vertical", 14))
sketch9.addConstraint(Sketcher.Constraint("Horizontal", 15))
sketch9.addConstraint(Sketcher.Constraint("Horizontal", 1, 2, 4, 2))
sketch9.addConstraint(Sketcher.Constraint("Horizontal", 5, 2, 8, 2))
sketch9.addConstraint(Sketcher.Constraint("Horizontal", 3, 2, 10, 2))
sketch9.addConstraint(Sketcher.Constraint("Horizontal", 9, 2, 12, 2))
sketch9.addConstraint(Sketcher.Constraint("Horizontal", 11, 2, 14, 2))
sketch9.addConstraint(Sketcher.Constraint("Equal", 5, 9))
sketch9.addConstraint(Sketcher.Constraint("Equal", 3, 11))
sketch9.addConstraint(Sketcher.Constraint("Equal", 1, 13))
sketch9.addConstraint(Sketcher.Constraint("Equal", 11, 15))
sketch9.addConstraint(Sketcher.Constraint("DistanceX", 1, 2, 1, 1, Q("6 mm")))
sketch9.addConstraint(Sketcher.Constraint("DistanceX", 3, 2, 3, 1, Q("2 mm")))
sketch9.addConstraint(Sketcher.Constraint("DistanceX", 5, 2, 5, 1, Q("1 mm")))
sketch9.addConstraint(Sketcher.Constraint("DistanceY", 0, 1, 0, 2, Q("5 mm")))
sketch9.addConstraint(Sketcher.Constraint("DistanceY", 6, 1, 6, 2, Q("10.5 mm")))
sketch9.addConstraint(Sketcher.Constraint("DistanceX", -1, 1, 0, 2, Q("19 mm")))
sketch9.addConstraint(Sketcher.Constraint("DistanceY", -1, 1, 6, 2, Q("63 mm")))
pocket6 = doc.addObject("PartDesign::Pocket", "Pocket005")
body.addObject(pocket6)
pocket6.Profile = sketch9
pocket6.Length = 6.5
pocket6.Reversed = True

# Sketch on XY plane
sketch10 = doc.addObject("Sketcher::SketchObject", "Sketch009")
body.addObject(sketch10)
sketch10.AttachmentSupport = (doc.XY_Plane, [""])
sketch10.MapMode = "FlatFace"
sketch10.AttachmentOffset = App.Placement(App.Vector(0, 0, -13.25), App.Rotation())
sketch10.addGeometry(Part.Circle(App.Vector(15.2, 55.7, 0), App.Vector(0, 0, 1), 1), False)
sketch10.addGeometry(Part.Circle(App.Vector(24.8, 55.7, 0), App.Vector(0, 0, 1), 1), False)
sketch10.addConstraint(Sketcher.Constraint("Equal", 0, 1))
sketch10.addConstraint(Sketcher.Constraint("Horizontal", 0, 3, 1, 3))
sketch10.addConstraint(Sketcher.Constraint("Diameter", 0, Q("2 mm")))
sketch10.addConstraint(Sketcher.Constraint("DistanceY", -1, 1, 0, 3, Q("55.7 mm")))
sketch10.addConstraint(Sketcher.Constraint("DistanceX", 0, 3, 1, 3, Q("9.5 mm")))
sketch10.addConstraint(Sketcher.Constraint("DistanceX", -1, 1, 0, 3, Q("15.25 mm")))
pocket7 = doc.addObject("PartDesign::Pocket", "Pocket006")
body.addObject(pocket7)
pocket7.Profile = sketch10
pocket7.Length = 17
pocket7.Reversed = True

# Sketch on XZ plane
sketch11 = doc.addObject("Sketcher::SketchObject", "Sketch010")
body.addObject(sketch11)
sketch11.AttachmentSupport = (doc.XZ_Plane, [""])
sketch11.MapMode = "FlatFace"
sketch11.AttachmentOffset = App.Placement(App.Vector(0, 0, -22), App.Rotation())
sketch11.addGeometry(Part.LineSegment(App.Vector(50, 2.7, 0), App.Vector(35.4, 2.7, 0)), False)
sketch11.addGeometry(Part.LineSegment(App.Vector(35.4, 2.7, 0), App.Vector(33.9, 0, 0)), False)
sketch11.addGeometry(Part.LineSegment(App.Vector(33.9, 0, 0), App.Vector(35.4, -2.7, 0)), False)
sketch11.addGeometry(Part.LineSegment(App.Vector(35.4, -2.7, 0), App.Vector(50, -2.7, 0)), False)
sketch11.addGeometry(Part.LineSegment(App.Vector(50, -2.7, 0), App.Vector(50, 2.7, 0)), False)
sketch11.addGeometry(Part.LineSegment(App.Vector(10, 2.7, 0), App.Vector(10, -2.7, 0)), False)
sketch11.addGeometry(Part.LineSegment(App.Vector(10, -2.7, 0), App.Vector(24.6, -2.7, 0)), False)
sketch11.addGeometry(Part.LineSegment(App.Vector(24.6, -2.7, 0), App.Vector(26.1, 0, 0)), False)
sketch11.addGeometry(Part.LineSegment(App.Vector(26.1, 0, 0), App.Vector(24.6, 2.7, 0)), False)
sketch11.addGeometry(Part.LineSegment(App.Vector(24.6, 2.7, 0), App.Vector(10, 2.7, 0)), False)
sketch11.addConstraint(Sketcher.Constraint("Coincident", 0, 2, 1, 1))
sketch11.addConstraint(Sketcher.Constraint("Coincident", 1, 2, 2, 1))
sketch11.addConstraint(Sketcher.Constraint("Coincident", 2, 2, 3, 1))
sketch11.addConstraint(Sketcher.Constraint("Coincident", 3, 2, 4, 1))
sketch11.addConstraint(Sketcher.Constraint("Coincident", 4, 2, 0, 1))
sketch11.addConstraint(Sketcher.Constraint("Coincident", 5, 2, 6, 1))
sketch11.addConstraint(Sketcher.Constraint("Coincident", 6, 2, 7, 1))
sketch11.addConstraint(Sketcher.Constraint("Coincident", 7, 2, 8, 1))
sketch11.addConstraint(Sketcher.Constraint("Coincident", 8, 2, 9, 1))
sketch11.addConstraint(Sketcher.Constraint("Coincident", 9, 2, 5, 1))
sketch11.addConstraint(Sketcher.Constraint("Horizontal", 0))
sketch11.addConstraint(Sketcher.Constraint("Horizontal", 3))
sketch11.addConstraint(Sketcher.Constraint("Vertical", 4))
sketch11.addConstraint(Sketcher.Constraint("Vertical", 5))
sketch11.addConstraint(Sketcher.Constraint("Horizontal", 6))
sketch11.addConstraint(Sketcher.Constraint("Horizontal", 9))
sketch11.addConstraint(Sketcher.Constraint("Symmetric", 0, 2, 2, 2, -1))
sketch11.addConstraint(Sketcher.Constraint("Symmetric", 6, 2, 8, 2, -1))
sketch11.addConstraint(Sketcher.Constraint("PointOnObject", 1, 2, -1))
sketch11.addConstraint(Sketcher.Constraint("PointOnObject", 7, 2, -1))
sketch11.addConstraint(Sketcher.Constraint("Parallel", 1, 7))
sketch11.addConstraint(Sketcher.Constraint("Horizontal", 3, 2, 5, 2))
sketch11.addConstraint(Sketcher.Constraint("Equal", 3, 6))
sketch11.addConstraint(Sketcher.Constraint("Angle", 1, Q("-120 deg")))
sketch11.addConstraint(Sketcher.Constraint("DistanceX", -1, 1, 3, 2, Q("50 mm")))
sketch11.addConstraint(Sketcher.Constraint("DistanceX", -1, 1, 5, 2, Q("10 mm")))
sketch11.addConstraint(Sketcher.Constraint("DistanceY", 4, 1, 4, 2, Q("5.45 mm")))
sketch11.addConstraint(Sketcher.Constraint("DistanceX", 0, 2, 0, 1, Q("14.573279 mm")))
pocket8 = doc.addObject("PartDesign::Pocket", "Pocket007")
body.addObject(pocket8)
pocket8.Profile = sketch11
pocket8.Length = 2.5

# Sketch on XZ plane
sketch12 = doc.addObject("Sketcher::SketchObject", "Sketch011")
body.addObject(sketch12)
sketch12.AttachmentSupport = (doc.XZ_Plane, [""])
sketch12.MapMode = "FlatFace"
sketch12.AttachmentOffset = App.Placement(App.Vector(0, 0, -22), App.Rotation())
sketch12.addGeometry(Part.Circle(App.Vector(37, 0, 0), App.Vector(0, 0, 1), 1.5), False)
sketch12.addGeometry(Part.Circle(App.Vector(23, 0, 0), App.Vector(0, 0, 1), 1.5), False)
sketch12.addConstraint(Sketcher.Constraint("Equal", 0, 1))
sketch12.addConstraint(Sketcher.Constraint("PointOnObject", 0, 3, -1))
sketch12.addConstraint(Sketcher.Constraint("PointOnObject", 1, 3, -1))
sketch12.addConstraint(Sketcher.Constraint("Diameter", 0, Q("3 mm")))
sketch12.addConstraint(Sketcher.Constraint("DistanceX", -1, 1, 0, 3, Q("37 mm")))
sketch12.addConstraint(Sketcher.Constraint("DistanceX", -1, 1, 1, 3, Q("23 mm")))
pocket9 = doc.addObject("PartDesign::Pocket", "Pocket008")
body.addObject(pocket9)
pocket9.Profile = sketch12
pocket9.Length = 9
pocket9.Reversed = True

# Sketch on YZ plane
sketch13 = doc.addObject("Sketcher::SketchObject", "Sketch012")
body.addObject(sketch13)
sketch13.AttachmentSupport = (doc.YZ_Plane, [""])
sketch13.MapMode = "FlatFace"
sketch13.AttachmentOffset = App.Placement(App.Vector(0, 0, 10), App.Rotation())
sketch13.addGeometry(Part.LineSegment(App.Vector(24.5, 3.2, 0), App.Vector(24.5, -3.2, 0)), False)
sketch13.addGeometry(Part.LineSegment(App.Vector(24.5, -3.2, 0), App.Vector(27, -3.2, 0)), False)
sketch13.addGeometry(Part.LineSegment(App.Vector(27, -3.2, 0), App.Vector(27, 3.2, 0)), False)
sketch13.addGeometry(Part.LineSegment(App.Vector(27, 3.2, 0), App.Vector(24.5, 3.2, 0)), False)
sketch13.addConstraint(Sketcher.Constraint("Coincident", 0, 2, 1, 1))
sketch13.addConstraint(Sketcher.Constraint("Coincident", 1, 2, 2, 1))
sketch13.addConstraint(Sketcher.Constraint("Coincident", 2, 2, 3, 1))
sketch13.addConstraint(Sketcher.Constraint("Coincident", 3, 2, 0, 1))
sketch13.addConstraint(Sketcher.Constraint("Vertical", 0))
sketch13.addConstraint(Sketcher.Constraint("Horizontal", 1))
sketch13.addConstraint(Sketcher.Constraint("Vertical", 2))
sketch13.addConstraint(Sketcher.Constraint("Horizontal", 3))
sketch13.addConstraint(Sketcher.Constraint("DistanceX", 1, 1, 1, 2, Q("2.5 mm")))
sketch13.addConstraint(Sketcher.Constraint("DistanceY", 0, 2, 0, 1, Q("6.5 mm")))
sketch13.addConstraint(Sketcher.Constraint("DistanceX", -1, 1, 1, 2, Q("27 mm")))
sketch13.addConstraint(Sketcher.Constraint("DistanceY", 0, 2, -1, 1, Q("3.25 mm")))
pocket10 = doc.addObject("PartDesign::Pocket", "Pocket009")
body.addObject(pocket10)
pocket10.Profile = sketch13
pocket10.Length = 159.544779
pocket10.Reversed = True
doc.recompute()

mirrored = doc.addObject("PartDesign::Mirrored", "Mirrored")
body.addObject(mirrored)
mirrored.Originals = [pocket8, pocket9, pocket10]
mirrored.MirrorPlane = (doc.YZ_Plane, [""])
body.Tip = mirrored
doc.recompute()

fillet = doc.addObject("PartDesign::Fillet", "Fillet")
body.addObject(fillet)
fillet.Base = (mirrored, edges_at(mirrored, [(-5, 48, -13.25), (45, 48, 13.25), (45, 48, -13.25)]))
fillet.Radius = 10

# Sketch on an angled plane
sketch14 = doc.addObject("Sketcher::SketchObject", "Sketch013")
body.addObject(sketch14)
sketch14.Placement = App.Placement(App.Vector(-18.537048, 8.60119, 0), App.Rotation(App.Vector(0, 0, 1), App.Vector(0.420898082, 0.907107935, 0), App.Vector(-0.907107935, 0.420898082, 0), "ZXY"))
sketch14.addGeometry(Part.LineSegment(App.Vector(3, 15, 0), App.Vector(3, 20, 0)), False)
sketch14.addGeometry(Part.LineSegment(App.Vector(3, 20, 0), App.Vector(-3, 20, 0)), False)
sketch14.addGeometry(Part.LineSegment(App.Vector(-3, 20, 0), App.Vector(-3, 15, 0)), False)
sketch14.addGeometry(Part.LineSegment(App.Vector(-3, 15, 0), App.Vector(3, 15, 0)), False)
sketch14.addGeometry(Part.LineSegment(App.Vector(3, 15, 0), App.Vector(-3, 15, 0)), True)  # axis
sketch14.addConstraint(Sketcher.Constraint("Coincident", 0, 2, 1, 1))
sketch14.addConstraint(Sketcher.Constraint("Coincident", 1, 2, 2, 1))
sketch14.addConstraint(Sketcher.Constraint("Coincident", 2, 2, 3, 1))
sketch14.addConstraint(Sketcher.Constraint("Coincident", 3, 2, 0, 1))
sketch14.addConstraint(Sketcher.Constraint("Vertical", 0))
sketch14.addConstraint(Sketcher.Constraint("Horizontal", 1))
sketch14.addConstraint(Sketcher.Constraint("Vertical", 2))
sketch14.addConstraint(Sketcher.Constraint("Horizontal", 3))
sketch14.addConstraint(Sketcher.Constraint("Horizontal", 4))
sketch14.addConstraint(Sketcher.Constraint("Coincident", 4, 1, 3, 2))
sketch14.addConstraint(Sketcher.Constraint("Vertical", 1, 2, 4, 2))
sketch14.addConstraint(Sketcher.Constraint("DistanceX", 1, 2, 1, 1, Q("6.5 mm")))
sketch14.addConstraint(Sketcher.Constraint("DistanceX", -1, 1, 0, 2, Q("3.25 mm")))
sketch14.addConstraint(Sketcher.Constraint("DistanceY", 0, 1, 0, 2, Q("5.512023 mm")))
sketch14.addConstraint(Sketcher.Constraint("DistanceY", -1, 1, 2, 2, Q("14.77091 mm")))
groove = doc.addObject("PartDesign::Groove", "Groove")
body.addObject(groove)
groove.Profile = sketch14
groove.ReferenceAxis = (sketch14, ["Axis0"])
groove.Angle = 90
doc.recompute()

mirrored2 = doc.addObject("PartDesign::Mirrored", "Mirrored001")
body.addObject(mirrored2)
mirrored2.Originals = [groove]
mirrored2.MirrorPlane = (doc.YZ_Plane, [""])
body.Tip = mirrored2

# Sketch on YZ plane
sketch15 = doc.addObject("Sketcher::SketchObject", "Sketch014")
body.addObject(sketch15)
sketch15.AttachmentSupport = (doc.YZ_Plane, [""])
sketch15.MapMode = "FlatFace"
sketch15.AttachmentOffset = App.Placement(App.Vector(0, 0, -12.32), App.Rotation())
sketch15.addGeometry(Part.LineSegment(App.Vector(22, 3, 0), App.Vector(27, 3, 0)), False)
sketch15.addGeometry(Part.LineSegment(App.Vector(27, 3, 0), App.Vector(27, -3, 0)), False)
sketch15.addGeometry(Part.LineSegment(App.Vector(27, -3, 0), App.Vector(22, -3, 0)), False)
sketch15.addGeometry(Part.LineSegment(App.Vector(22, -3, 0), App.Vector(22, 3, 0)), False)
sketch15.addConstraint(Sketcher.Constraint("Coincident", 0, 2, 1, 1))
sketch15.addConstraint(Sketcher.Constraint("Coincident", 1, 2, 2, 1))
sketch15.addConstraint(Sketcher.Constraint("Coincident", 2, 2, 3, 1))
sketch15.addConstraint(Sketcher.Constraint("Coincident", 3, 2, 0, 1))
sketch15.addConstraint(Sketcher.Constraint("Horizontal", 0))
sketch15.addConstraint(Sketcher.Constraint("Vertical", 1))
sketch15.addConstraint(Sketcher.Constraint("Horizontal", 2))
sketch15.addConstraint(Sketcher.Constraint("Vertical", 3))
sketch15.addConstraint(Sketcher.Constraint("DistanceX", 0, 1, 0, 2, Q("5 mm")))
sketch15.addConstraint(Sketcher.Constraint("DistanceY", 1, 2, 1, 1, Q("6.5 mm")))
sketch15.addConstraint(Sketcher.Constraint("DistanceX", -1, 1, 0, 2, Q("27 mm")))
sketch15.addConstraint(Sketcher.Constraint("DistanceY", -1, 1, 0, 2, Q("3.25 mm")))
pocket11 = doc.addObject("PartDesign::Pocket", "Pocket010")
body.addObject(pocket11)
pocket11.Profile = sketch15
pocket11.Length = 2
pocket11.Reversed = True
doc.recompute()

mirrored3 = doc.addObject("PartDesign::Mirrored", "Mirrored002")
body.addObject(mirrored3)
mirrored3.Originals = [pocket11]
mirrored3.MirrorPlane = (doc.YZ_Plane, [""])
body.Tip = mirrored3

# Sketch on XZ plane
sketch16 = doc.addObject("Sketcher::SketchObject", "Sketch015")
body.addObject(sketch16)
sketch16.AttachmentSupport = (doc.XZ_Plane, [""])
sketch16.MapMode = "FlatFace"
sketch16.AttachmentOffset = App.Placement(App.Vector(0, 0, -33), App.Rotation())
sketch16.addGeometry(Part.Circle(App.Vector(7, -15.2, 0), App.Vector(0, 0, 1), 2), False)
sketch16.addConstraint(Sketcher.Constraint("Diameter", 0, Q("4 mm")))
sketch16.addConstraint(Sketcher.Constraint("DistanceX", -1, 1, 0, 3, Q("7 mm")))
sketch16.addConstraint(Sketcher.Constraint("DistanceY", 0, 3, -1, 1, Q("15.25 mm")))
pocket12 = doc.addObject("PartDesign::Pocket", "Pocket011")
body.addObject(pocket12)
pocket12.Profile = sketch16
pocket12.Length = 11
pocket12.Reversed = True

doc.recompute()
